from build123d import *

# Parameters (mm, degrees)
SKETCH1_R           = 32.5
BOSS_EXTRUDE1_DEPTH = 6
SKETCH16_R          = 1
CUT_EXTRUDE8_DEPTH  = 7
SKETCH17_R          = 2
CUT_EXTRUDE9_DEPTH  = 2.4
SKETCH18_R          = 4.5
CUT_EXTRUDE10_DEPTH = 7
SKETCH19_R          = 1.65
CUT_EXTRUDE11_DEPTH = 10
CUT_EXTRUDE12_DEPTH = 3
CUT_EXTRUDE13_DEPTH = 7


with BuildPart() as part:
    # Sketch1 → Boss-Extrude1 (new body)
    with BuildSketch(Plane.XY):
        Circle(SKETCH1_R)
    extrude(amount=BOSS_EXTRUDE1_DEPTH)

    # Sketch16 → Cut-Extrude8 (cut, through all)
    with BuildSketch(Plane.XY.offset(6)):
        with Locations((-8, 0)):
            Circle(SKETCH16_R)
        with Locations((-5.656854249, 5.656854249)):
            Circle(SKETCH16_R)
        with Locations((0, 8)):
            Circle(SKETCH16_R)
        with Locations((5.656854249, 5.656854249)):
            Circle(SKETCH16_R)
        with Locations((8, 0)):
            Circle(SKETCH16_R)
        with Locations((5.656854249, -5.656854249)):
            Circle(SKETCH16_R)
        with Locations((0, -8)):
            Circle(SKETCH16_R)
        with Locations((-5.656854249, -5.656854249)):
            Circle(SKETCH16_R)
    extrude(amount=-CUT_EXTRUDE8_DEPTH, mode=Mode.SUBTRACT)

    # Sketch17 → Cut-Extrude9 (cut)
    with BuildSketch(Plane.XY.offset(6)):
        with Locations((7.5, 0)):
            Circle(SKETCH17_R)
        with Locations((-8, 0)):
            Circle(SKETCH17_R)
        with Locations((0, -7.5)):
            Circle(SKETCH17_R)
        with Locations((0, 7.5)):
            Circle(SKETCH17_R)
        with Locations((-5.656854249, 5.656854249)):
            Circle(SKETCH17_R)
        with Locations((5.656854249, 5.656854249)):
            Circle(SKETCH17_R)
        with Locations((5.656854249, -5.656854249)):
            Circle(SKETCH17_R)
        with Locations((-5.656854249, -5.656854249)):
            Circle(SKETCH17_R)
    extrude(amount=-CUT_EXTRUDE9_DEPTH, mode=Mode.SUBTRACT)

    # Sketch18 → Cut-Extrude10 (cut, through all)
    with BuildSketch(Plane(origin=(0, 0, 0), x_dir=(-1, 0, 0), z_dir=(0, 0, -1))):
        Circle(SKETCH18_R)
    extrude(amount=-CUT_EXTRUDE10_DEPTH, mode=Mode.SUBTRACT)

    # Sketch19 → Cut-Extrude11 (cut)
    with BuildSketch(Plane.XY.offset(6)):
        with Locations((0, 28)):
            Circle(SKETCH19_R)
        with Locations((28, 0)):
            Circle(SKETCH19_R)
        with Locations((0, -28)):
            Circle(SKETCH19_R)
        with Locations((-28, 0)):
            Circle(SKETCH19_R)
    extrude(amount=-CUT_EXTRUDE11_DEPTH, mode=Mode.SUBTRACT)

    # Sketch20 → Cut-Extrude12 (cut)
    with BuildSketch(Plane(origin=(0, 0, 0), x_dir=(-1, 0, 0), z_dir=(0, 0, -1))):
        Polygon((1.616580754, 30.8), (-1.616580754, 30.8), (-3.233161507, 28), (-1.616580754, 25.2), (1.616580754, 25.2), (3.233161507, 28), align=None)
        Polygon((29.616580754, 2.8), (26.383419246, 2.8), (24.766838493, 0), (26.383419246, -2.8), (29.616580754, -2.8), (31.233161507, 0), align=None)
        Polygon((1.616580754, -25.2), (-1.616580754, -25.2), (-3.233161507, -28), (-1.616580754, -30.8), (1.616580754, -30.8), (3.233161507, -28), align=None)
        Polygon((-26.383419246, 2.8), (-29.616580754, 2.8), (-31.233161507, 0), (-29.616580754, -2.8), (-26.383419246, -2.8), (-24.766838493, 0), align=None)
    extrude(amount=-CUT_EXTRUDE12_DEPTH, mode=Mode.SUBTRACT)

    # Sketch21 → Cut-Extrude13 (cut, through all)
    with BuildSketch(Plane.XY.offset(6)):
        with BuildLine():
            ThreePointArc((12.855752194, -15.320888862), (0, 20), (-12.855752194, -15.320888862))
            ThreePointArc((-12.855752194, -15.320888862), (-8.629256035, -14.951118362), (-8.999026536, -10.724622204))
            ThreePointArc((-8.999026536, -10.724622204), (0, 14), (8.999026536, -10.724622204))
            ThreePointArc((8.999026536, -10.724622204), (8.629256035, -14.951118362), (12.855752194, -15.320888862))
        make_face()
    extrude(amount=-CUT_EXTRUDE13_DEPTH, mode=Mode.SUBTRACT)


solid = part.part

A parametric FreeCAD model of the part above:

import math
import FreeCAD as App
import Part
import Sketcher
Q = App.Units.Quantity


def add_polygon(sketch, points):
    """Adds a closed chain of lines whose ends are joined by coincident constraints."""
    first, n = sketch.GeometryCount, len(points)
    for a, b in zip(points, points[1:] + points[:1]):
        sketch.addGeometry(Part.LineSegment(App.Vector(*a, 0), App.Vector(*b, 0)), False)
    for i in range(n):
        sketch.addConstraint(Sketcher.Constraint("Coincident", first + i, 2, first + (i + 1) % n, 1))

doc = App.newDocument("Part")
body = doc.addObject("PartDesign::Body", "Body")

# Sketch on XY plane
sketch1 = body.newObject("Sketcher::SketchObject", "Sketch")
sketch1.AttachmentSupport = (doc.getObject("XY_Plane"), [""])
sketch1.MapMode = "FlatFace"
sketch1.addGeometry(Part.Circle(App.Vector(0, 0, 0), App.Vector(0, 0, 1), 32), False)
sketch1.addConstraint([
    Sketcher.Constraint("Coincident", 0, 3, -1, 1),
    Sketcher.Constraint("Diameter", 0, Q("65 mm")),
])
pad1 = body.newObject("PartDesign::Pad", "Pad")
pad1.Profile = sketch1
pad1.Length = 6

# Sketch on XY plane
sketch2 = body.newObject("Sketcher::SketchObject", "Sketch001")
sketch2.AttachmentSupport = (doc.getObject("XY_Plane"), [""])
sketch2.MapMode = "FlatFace"
sketch2.AttachmentOffset = App.Placement(App.Vector(0, 0, 6), App.Rotation())
sketch2.addGeometry([
    Part.Circle(App.Vector(-8, 0, 0), App.Vector(0, 0, 1), 1),  # 0
    Part.Circle(App.Vector(-5.7, 5.7, 0), App.Vector(0, 0, 1), 1),  # 1
    Part.Circle(App.Vector(0, 8, 0), App.Vector(0, 0, 1), 1),  # 2
    Part.Circle(App.Vector(5.7, 5.7, 0), App.Vector(0, 0, 1), 1),  # 3
    Part.Circle(App.Vector(8, 0, 0), App.Vector(0, 0, 1), 1),  # 4
    Part.Circle(App.Vector(5.7, -5.7, 0), App.Vector(0, 0, 1), 1),  # 5
    Part.Circle(App.Vector(0, -8, 0), App.Vector(0, 0, 1), 1),  # 6
    Part.Circle(App.Vector(-5.7, -5.7, 0), App.Vector(0, 0, 1), 1),  # 7
], False)
sketch2.addConstraint([
    Sketcher.Constraint("Equal", 0, 1),
    Sketcher.Constraint("Equal", 1, 2),
    Sketcher.Constraint("Equal", 2, 3),
    Sketcher.Constraint("Equal", 3, 4),
    Sketcher.Constraint("Equal", 4, 5),
    Sketcher.Constraint("Equal", 5, 6),
    Sketcher.Constraint("Equal", 6, 7),
    Sketcher.Constraint("Symmetric", 0, 3, 4, 3, -1, 1),
    Sketcher.Constraint("Symmetric", 1, 3, 5, 3, -1, 1),
    Sketcher.Constraint("Symmetric", 2, 3, 6, 3, -1, 1),
    Sketcher.Constraint("Symmetric", 3, 3, 7, 3, -1, 1),
    Sketcher.Constraint("Symmetric", 1, 3, 3, 3, -2),
    Sketcher.Constraint("PointOnObject", 0, 3, -1),
    Sketcher.Constraint("PointOnObject", 2, 3, -2),
    Sketcher.Constraint("Diameter", 0, Q("2 mm")),
    Sketcher.Constraint("DistanceX", 0, 3, -1, 1, Q("8 mm")),
    Sketcher.Constraint("DistanceY", -1, 1, 2, 3, Q("8 mm")),
    Sketcher.Constraint("DistanceX", 1, 3, 3, 3, Q("11.313708 mm")),
    Sketcher.Constraint("DistanceY", 5, 3, 3, 3, Q("11.313708 mm")),
])
pocket1 = body.newObject("PartDesign::Pocket", "Pocket")
pocket1.Profile = sketch2
pocket1.Type = "ThroughAll"

# Sketch on XY plane
sketch3 = body.newObject("Sketcher::SketchObject", "Sketch002")
sketch3.AttachmentSupport = (doc.getObject("XY_Plane"), [""])
sketch3.MapMode = "FlatFace"
sketch3.AttachmentOffset = App.Placement(App.Vector(0, 0, 6), App.Rotation())
sketch3.addGeometry([
    Part.Circle(App.Vector(7.5, 0, 0), App.Vector(0, 0, 1), 2),  # 0
    Part.Circle(App.Vector(-8, 0, 0), App.Vector(0, 0, 1), 2),  # 1
    Part.Circle(App.Vector(0, -7.5, 0), App.Vector(0, 0, 1), 2),  # 2
    Part.Circle(App.Vector(0, 7.5, 0), App.Vector(0, 0, 1), 2),  # 3
    Part.Circle(App.Vector(-5.7, 5.7, 0), App.Vector(0, 0, 1), 2),  # 4
    Part.Circle(App.Vector(5.7, 5.7, 0), App.Vector(0, 0, 1), 2),  # 5
    Part.Circle(App.Vector(5.7, -5.7, 0), App.Vector(0, 0, 1), 2),  # 6
    Part.Circle(App.Vector(-5.7, -5.7, 0), App.Vector(0, 0, 1), 2),  # 7
], False)
sketch3.addConstraint([
    Sketcher.Constraint("Equal", 0, 1),
    Sketcher.Constraint("Equal", 1, 2),
    Sketcher.Constraint("Equal", 2, 3),
    Sketcher.Constraint("Equal", 3, 4),
    Sketcher.Constraint("Equal", 4, 5),
    Sketcher.Constraint("Equal", 5, 6),
    Sketcher.Constraint("Equal", 6, 7),
    Sketcher.Constraint("Symmetric", 2, 3, 3, 3, -1, 1),
    Sketcher.Constraint("Symmetric", 4, 3, 6, 3, -1, 1),
    Sketcher.Constraint("Symmetric", 5, 3, 7, 3, -1, 1),
    Sketcher.Constraint("Symmetric", 4, 3, 5, 3, -2),
    Sketcher.Constraint("PointOnObject", 0, 3, -1),
    Sketcher.Constraint("PointOnObject", 1, 3, -1),
    Sketcher.Constraint("PointOnObject", 2, 3, -2),
    Sketcher.Constraint("Diameter", 0, Q("4 mm")),
    Sketcher.Constraint("DistanceX", 1, 3, -1, 1, Q("8 mm")),
    Sketcher.Constraint("DistanceY", 2, 3, 3, 3, Q("15 mm")),
    Sketcher.Constraint("DistanceX", -1, 1, 0, 3, Q("7.5 mm")),
    Sketcher.Constraint("DistanceX", 4, 3, 5, 3, Q("11.313708 mm")),
    Sketcher.Constraint("DistanceY", 6, 3, 5, 3, Q("11.313708 mm")),
])
pocket2 = body.newObject("PartDesign::Pocket", "Pocket001")
pocket2.Profile = sketch3
pocket2.Length = 2.4

# Sketch on XY plane
sketch4 = body.newObject("Sketcher::SketchObject", "Sketch003")
sketch4.AttachmentSupport = (doc.getObject("XY_Plane"), [""])
sketch4.MapMode = "FlatFace"
sketch4.addGeometry(Part.Circle(App.Vector(0, 0, 0), App.Vector(0, 0, 1), 4.5), False)
sketch4.addConstraint([
    Sketcher.Constraint("Coincident", 0, 3, -1, 1),
    Sketcher.Constraint("Diameter", 0, Q("9 mm")),
])
pocket3 = body.newObject("PartDesign::Pocket", "Pocket002")
pocket3.Profile = sketch4
pocket3.Type = "ThroughAll"
pocket3.Reversed = True

# Sketch on XY plane
sketch5 = body.newObject("Sketcher::SketchObject", "Sketch004")
sketch5.AttachmentSupport = (doc.getObject("XY_Plane"), [""])
sketch5.MapMode = "FlatFace"
sketch5.AttachmentOffset = App.Placement(App.Vector(0, 0, 6), App.Rotation())
sketch5.addGeometry([
    Part.Circle(App.Vector(0, 28, 0), App.Vector(0, 0, 1), 1.6),
    Part.Circle(App.Vector(28, 0, 0), App.Vector(0, 0, 1), 1.6),
    Part.Circle(App.Vector(0, -28, 0), App.Vector(0, 0, 1), 1.6),
    Part.Circle(App.Vector(-28, 0, 0), App.Vector(0, 0, 1), 1.6),
], False)
sketch5.addConstraint([
    Sketcher.Constraint("Equal", 0, 1),
    Sketcher.Constraint("Equal", 1, 2),
    Sketcher.Constraint("Equal", 2, 3),
    Sketcher.Constraint("Symmetric", 0, 3, 2, 3, -1, 1),
    Sketcher.Constraint("Symmetric", 1, 3, 3, 3, -1, 1),
    Sketcher.Constraint("PointOnObject", 0, 3, -2),
    Sketcher.Constraint("PointOnObject", 1, 3, -1),
    Sketcher.Constraint("Diameter", 0, Q("3.3 mm")),
    Sketcher.Constraint("DistanceY", -1, 1, 0, 3, Q("28 mm")),
    Sketcher.Constraint("DistanceX", -1, 1, 1, 3, Q("28 mm")),
])
pocket4 = body.newObject("PartDesign::Pocket", "Pocket003")
pocket4.Profile = sketch5
pocket4.Length = 10

# Sketch on XY plane
sketch6 = body.newObject("Sketcher::SketchObject", "Sketch005")
sketch6.AttachmentSupport = (doc.getObject("XY_Plane"), [""])
sketch6.MapMode = "FlatFace"
add_polygon(sketch6, [(-1.6, 30.8), (1.6, 30.8), (3.2, 28), (1.6, 25.2), (-1.6, 25.2), (-3.2, 28)])  # lines 0-5
add_polygon(sketch6, [(-29.6, 2.8), (-26.4, 2.8), (-24.8, 0), (-26.4, -2.8), (-29.6, -2.8), (-31.2, 0)])  # lines 6-11
add_polygon(sketch6, [(-1.6, -25.2), (1.6, -25.2), (3.2, -28), (1.6, -30.8), (-1.6, -30.8), (-3.2, -28)])  # lines 12-17
add_polygon(sketch6, [(26.4, 2.8), (29.6, 2.8), (31.2, 0), (29.6, -2.8), (26.4, -2.8), (24.8, 0)])  # lines 18-23
sketch6.addConstraint([
    Sketcher.Constraint("Horizontal", 0),
    Sketcher.Constraint("Horizontal", 3),
    Sketcher.Constraint("Horizontal", 6),
    Sketcher.Constraint("Horizontal", 9),
    Sketcher.Constraint("Horizontal", 12),
    Sketcher.Constraint("Horizontal", 15),
    Sketcher.Constraint("Horizontal", 18),
    Sketcher.Constraint("Horizontal", 21),
    Sketcher.Constraint("Symmetric", 3, 2, 12, 2, -1, 1),
    Sketcher.Constraint("Symmetric", 4, 2, 13, 2, -1, 1),
    Sketcher.Constraint("Symmetric", 5, 2, 14, 2, -1, 1),
    Sketcher.Constraint("Symmetric", 1, 2, 16, 2, -1, 1),
    Sketcher.Constraint("Symmetric", 9, 2, 18, 2, -1, 1),
    Sketcher.Constraint("Symmetric", 10, 2, 19, 2, -1, 1),
    Sketcher.Constraint("Symmetric", 11, 2, 20, 2, -1, 1),
    Sketcher.Constraint("Symmetric", 7, 2, 22, 2, -1, 1),
    Sketcher.Constraint("Symmetric", 1, 2, 4, 2, -2),
    Sketcher.Constraint("Symmetric", 11, 2, 18, 2, -2),
    Sketcher.Constraint("PointOnObject", 7, 2, -1),
    Sketcher.Constraint("PointOnObject", 10, 2, -1),
    Sketcher.Constraint("Parallel", 1, 4),
    Sketcher.Constraint("Parallel", 2, 5),
    Sketcher.Constraint("Parallel", 4, 7),
    Sketcher.Constraint("Parallel", 5, 8),
    Sketcher.Constraint("Parallel", 7, 10),
    Sketcher.Constraint("Parallel", 8, 11),
    Sketcher.Constraint("Parallel", 13, 16),
    Sketcher.Constraint("Parallel", 14, 17),
    Sketcher.Constraint("Parallel", 19, 22),
    Sketcher.Constraint("Parallel", 20, 23),
    Sketcher.Constraint("Vertical", 0, 2, 2, 2),
    Sketcher.Constraint("Equal", 3, 6),
    Sketcher.Constraint("Equal", 5, 7),
    Sketcher.Constraint("Angle", 1, Q("-60 deg")),
    Sketcher.Constraint("DistanceY", -1, 1, 1, 2, Q("28 mm")),
    Sketcher.Constraint("DistanceX", 6, 2, 2, 2, Q("28 mm")),
    Sketcher.Constraint("DistanceY", -1, 1, 0, 2, Q("30.8 mm")),
    Sketcher.Constraint("DistanceX", 0, 1, 0, 2, Q("3.233162 mm")),
])
pocket5 = body.newObject("PartDesign::Pocket", "Pocket004")
pocket5.Profile = sketch6
pocket5.Length = 3
pocket5.Reversed = True

# Sketch on XY plane
sketch7 = body.newObject("Sketcher::SketchObject", "Sketch006")
sketch7.AttachmentSupport = (doc.getObject("XY_Plane"), [""])
sketch7.MapMode = "FlatFace"
sketch7.AttachmentOffset = App.Placement(App.Vector(0, 0, 6), App.Rotation())
sketch7.addGeometry([
    Part.ArcOfCircle(Part.Circle(App.Vector(0, 0, 0), App.Vector(0, 0, 1), 20), math.radians(-50), math.radians(230)),
    Part.ArcOfCircle(Part.Circle(App.Vector(-10.9, -13, 0), App.Vector(0, 0, 1), 3), math.radians(-130), math.radians(50)),
    Part.ArcOfCircle(Part.Circle(App.Vector(0, 0, 0), App.Vector(0, 0, 1), 14), math.radians(-50), math.radians(230)),
    Part.ArcOfCircle(Part.Circle(App.Vector(10.9, -13, 0), App.Vector(0, 0, 1), 3), math.radians(130), math.radians(310)),
], False)
sketch7.addConstraint([
    Sketcher.Constraint("Tangent", 0, 2, 1, 1),
    Sketcher.Constraint("Tangent", 1, 2, 2, 2),
    Sketcher.Constraint("Tangent", 2, 1, 3, 1),
    Sketcher.Constraint("Tangent", 3, 2, 0, 1),
    Sketcher.Constraint("Coincident", 0, 3, -1, 1),
    Sketcher.Constraint("Coincident", 2, 3, -1, 1),
    Sketcher.Constraint("Horizontal", 1, 3, 3, 3),
    Sketcher.Constraint("Radius", 0, Q("20 mm")),
    Sketcher.Constraint("Radius", 1, Q("3 mm")),
    Sketcher.Constraint("DistanceX", 1, 3, -1, 1, Q("10.927389 mm")),
])
pocket6 = body.newObject("PartDesign::Pocket", "Pocket005")
pocket6.Profile = sketch7
pocket6.Type = "ThroughAll"

doc.recompute()
